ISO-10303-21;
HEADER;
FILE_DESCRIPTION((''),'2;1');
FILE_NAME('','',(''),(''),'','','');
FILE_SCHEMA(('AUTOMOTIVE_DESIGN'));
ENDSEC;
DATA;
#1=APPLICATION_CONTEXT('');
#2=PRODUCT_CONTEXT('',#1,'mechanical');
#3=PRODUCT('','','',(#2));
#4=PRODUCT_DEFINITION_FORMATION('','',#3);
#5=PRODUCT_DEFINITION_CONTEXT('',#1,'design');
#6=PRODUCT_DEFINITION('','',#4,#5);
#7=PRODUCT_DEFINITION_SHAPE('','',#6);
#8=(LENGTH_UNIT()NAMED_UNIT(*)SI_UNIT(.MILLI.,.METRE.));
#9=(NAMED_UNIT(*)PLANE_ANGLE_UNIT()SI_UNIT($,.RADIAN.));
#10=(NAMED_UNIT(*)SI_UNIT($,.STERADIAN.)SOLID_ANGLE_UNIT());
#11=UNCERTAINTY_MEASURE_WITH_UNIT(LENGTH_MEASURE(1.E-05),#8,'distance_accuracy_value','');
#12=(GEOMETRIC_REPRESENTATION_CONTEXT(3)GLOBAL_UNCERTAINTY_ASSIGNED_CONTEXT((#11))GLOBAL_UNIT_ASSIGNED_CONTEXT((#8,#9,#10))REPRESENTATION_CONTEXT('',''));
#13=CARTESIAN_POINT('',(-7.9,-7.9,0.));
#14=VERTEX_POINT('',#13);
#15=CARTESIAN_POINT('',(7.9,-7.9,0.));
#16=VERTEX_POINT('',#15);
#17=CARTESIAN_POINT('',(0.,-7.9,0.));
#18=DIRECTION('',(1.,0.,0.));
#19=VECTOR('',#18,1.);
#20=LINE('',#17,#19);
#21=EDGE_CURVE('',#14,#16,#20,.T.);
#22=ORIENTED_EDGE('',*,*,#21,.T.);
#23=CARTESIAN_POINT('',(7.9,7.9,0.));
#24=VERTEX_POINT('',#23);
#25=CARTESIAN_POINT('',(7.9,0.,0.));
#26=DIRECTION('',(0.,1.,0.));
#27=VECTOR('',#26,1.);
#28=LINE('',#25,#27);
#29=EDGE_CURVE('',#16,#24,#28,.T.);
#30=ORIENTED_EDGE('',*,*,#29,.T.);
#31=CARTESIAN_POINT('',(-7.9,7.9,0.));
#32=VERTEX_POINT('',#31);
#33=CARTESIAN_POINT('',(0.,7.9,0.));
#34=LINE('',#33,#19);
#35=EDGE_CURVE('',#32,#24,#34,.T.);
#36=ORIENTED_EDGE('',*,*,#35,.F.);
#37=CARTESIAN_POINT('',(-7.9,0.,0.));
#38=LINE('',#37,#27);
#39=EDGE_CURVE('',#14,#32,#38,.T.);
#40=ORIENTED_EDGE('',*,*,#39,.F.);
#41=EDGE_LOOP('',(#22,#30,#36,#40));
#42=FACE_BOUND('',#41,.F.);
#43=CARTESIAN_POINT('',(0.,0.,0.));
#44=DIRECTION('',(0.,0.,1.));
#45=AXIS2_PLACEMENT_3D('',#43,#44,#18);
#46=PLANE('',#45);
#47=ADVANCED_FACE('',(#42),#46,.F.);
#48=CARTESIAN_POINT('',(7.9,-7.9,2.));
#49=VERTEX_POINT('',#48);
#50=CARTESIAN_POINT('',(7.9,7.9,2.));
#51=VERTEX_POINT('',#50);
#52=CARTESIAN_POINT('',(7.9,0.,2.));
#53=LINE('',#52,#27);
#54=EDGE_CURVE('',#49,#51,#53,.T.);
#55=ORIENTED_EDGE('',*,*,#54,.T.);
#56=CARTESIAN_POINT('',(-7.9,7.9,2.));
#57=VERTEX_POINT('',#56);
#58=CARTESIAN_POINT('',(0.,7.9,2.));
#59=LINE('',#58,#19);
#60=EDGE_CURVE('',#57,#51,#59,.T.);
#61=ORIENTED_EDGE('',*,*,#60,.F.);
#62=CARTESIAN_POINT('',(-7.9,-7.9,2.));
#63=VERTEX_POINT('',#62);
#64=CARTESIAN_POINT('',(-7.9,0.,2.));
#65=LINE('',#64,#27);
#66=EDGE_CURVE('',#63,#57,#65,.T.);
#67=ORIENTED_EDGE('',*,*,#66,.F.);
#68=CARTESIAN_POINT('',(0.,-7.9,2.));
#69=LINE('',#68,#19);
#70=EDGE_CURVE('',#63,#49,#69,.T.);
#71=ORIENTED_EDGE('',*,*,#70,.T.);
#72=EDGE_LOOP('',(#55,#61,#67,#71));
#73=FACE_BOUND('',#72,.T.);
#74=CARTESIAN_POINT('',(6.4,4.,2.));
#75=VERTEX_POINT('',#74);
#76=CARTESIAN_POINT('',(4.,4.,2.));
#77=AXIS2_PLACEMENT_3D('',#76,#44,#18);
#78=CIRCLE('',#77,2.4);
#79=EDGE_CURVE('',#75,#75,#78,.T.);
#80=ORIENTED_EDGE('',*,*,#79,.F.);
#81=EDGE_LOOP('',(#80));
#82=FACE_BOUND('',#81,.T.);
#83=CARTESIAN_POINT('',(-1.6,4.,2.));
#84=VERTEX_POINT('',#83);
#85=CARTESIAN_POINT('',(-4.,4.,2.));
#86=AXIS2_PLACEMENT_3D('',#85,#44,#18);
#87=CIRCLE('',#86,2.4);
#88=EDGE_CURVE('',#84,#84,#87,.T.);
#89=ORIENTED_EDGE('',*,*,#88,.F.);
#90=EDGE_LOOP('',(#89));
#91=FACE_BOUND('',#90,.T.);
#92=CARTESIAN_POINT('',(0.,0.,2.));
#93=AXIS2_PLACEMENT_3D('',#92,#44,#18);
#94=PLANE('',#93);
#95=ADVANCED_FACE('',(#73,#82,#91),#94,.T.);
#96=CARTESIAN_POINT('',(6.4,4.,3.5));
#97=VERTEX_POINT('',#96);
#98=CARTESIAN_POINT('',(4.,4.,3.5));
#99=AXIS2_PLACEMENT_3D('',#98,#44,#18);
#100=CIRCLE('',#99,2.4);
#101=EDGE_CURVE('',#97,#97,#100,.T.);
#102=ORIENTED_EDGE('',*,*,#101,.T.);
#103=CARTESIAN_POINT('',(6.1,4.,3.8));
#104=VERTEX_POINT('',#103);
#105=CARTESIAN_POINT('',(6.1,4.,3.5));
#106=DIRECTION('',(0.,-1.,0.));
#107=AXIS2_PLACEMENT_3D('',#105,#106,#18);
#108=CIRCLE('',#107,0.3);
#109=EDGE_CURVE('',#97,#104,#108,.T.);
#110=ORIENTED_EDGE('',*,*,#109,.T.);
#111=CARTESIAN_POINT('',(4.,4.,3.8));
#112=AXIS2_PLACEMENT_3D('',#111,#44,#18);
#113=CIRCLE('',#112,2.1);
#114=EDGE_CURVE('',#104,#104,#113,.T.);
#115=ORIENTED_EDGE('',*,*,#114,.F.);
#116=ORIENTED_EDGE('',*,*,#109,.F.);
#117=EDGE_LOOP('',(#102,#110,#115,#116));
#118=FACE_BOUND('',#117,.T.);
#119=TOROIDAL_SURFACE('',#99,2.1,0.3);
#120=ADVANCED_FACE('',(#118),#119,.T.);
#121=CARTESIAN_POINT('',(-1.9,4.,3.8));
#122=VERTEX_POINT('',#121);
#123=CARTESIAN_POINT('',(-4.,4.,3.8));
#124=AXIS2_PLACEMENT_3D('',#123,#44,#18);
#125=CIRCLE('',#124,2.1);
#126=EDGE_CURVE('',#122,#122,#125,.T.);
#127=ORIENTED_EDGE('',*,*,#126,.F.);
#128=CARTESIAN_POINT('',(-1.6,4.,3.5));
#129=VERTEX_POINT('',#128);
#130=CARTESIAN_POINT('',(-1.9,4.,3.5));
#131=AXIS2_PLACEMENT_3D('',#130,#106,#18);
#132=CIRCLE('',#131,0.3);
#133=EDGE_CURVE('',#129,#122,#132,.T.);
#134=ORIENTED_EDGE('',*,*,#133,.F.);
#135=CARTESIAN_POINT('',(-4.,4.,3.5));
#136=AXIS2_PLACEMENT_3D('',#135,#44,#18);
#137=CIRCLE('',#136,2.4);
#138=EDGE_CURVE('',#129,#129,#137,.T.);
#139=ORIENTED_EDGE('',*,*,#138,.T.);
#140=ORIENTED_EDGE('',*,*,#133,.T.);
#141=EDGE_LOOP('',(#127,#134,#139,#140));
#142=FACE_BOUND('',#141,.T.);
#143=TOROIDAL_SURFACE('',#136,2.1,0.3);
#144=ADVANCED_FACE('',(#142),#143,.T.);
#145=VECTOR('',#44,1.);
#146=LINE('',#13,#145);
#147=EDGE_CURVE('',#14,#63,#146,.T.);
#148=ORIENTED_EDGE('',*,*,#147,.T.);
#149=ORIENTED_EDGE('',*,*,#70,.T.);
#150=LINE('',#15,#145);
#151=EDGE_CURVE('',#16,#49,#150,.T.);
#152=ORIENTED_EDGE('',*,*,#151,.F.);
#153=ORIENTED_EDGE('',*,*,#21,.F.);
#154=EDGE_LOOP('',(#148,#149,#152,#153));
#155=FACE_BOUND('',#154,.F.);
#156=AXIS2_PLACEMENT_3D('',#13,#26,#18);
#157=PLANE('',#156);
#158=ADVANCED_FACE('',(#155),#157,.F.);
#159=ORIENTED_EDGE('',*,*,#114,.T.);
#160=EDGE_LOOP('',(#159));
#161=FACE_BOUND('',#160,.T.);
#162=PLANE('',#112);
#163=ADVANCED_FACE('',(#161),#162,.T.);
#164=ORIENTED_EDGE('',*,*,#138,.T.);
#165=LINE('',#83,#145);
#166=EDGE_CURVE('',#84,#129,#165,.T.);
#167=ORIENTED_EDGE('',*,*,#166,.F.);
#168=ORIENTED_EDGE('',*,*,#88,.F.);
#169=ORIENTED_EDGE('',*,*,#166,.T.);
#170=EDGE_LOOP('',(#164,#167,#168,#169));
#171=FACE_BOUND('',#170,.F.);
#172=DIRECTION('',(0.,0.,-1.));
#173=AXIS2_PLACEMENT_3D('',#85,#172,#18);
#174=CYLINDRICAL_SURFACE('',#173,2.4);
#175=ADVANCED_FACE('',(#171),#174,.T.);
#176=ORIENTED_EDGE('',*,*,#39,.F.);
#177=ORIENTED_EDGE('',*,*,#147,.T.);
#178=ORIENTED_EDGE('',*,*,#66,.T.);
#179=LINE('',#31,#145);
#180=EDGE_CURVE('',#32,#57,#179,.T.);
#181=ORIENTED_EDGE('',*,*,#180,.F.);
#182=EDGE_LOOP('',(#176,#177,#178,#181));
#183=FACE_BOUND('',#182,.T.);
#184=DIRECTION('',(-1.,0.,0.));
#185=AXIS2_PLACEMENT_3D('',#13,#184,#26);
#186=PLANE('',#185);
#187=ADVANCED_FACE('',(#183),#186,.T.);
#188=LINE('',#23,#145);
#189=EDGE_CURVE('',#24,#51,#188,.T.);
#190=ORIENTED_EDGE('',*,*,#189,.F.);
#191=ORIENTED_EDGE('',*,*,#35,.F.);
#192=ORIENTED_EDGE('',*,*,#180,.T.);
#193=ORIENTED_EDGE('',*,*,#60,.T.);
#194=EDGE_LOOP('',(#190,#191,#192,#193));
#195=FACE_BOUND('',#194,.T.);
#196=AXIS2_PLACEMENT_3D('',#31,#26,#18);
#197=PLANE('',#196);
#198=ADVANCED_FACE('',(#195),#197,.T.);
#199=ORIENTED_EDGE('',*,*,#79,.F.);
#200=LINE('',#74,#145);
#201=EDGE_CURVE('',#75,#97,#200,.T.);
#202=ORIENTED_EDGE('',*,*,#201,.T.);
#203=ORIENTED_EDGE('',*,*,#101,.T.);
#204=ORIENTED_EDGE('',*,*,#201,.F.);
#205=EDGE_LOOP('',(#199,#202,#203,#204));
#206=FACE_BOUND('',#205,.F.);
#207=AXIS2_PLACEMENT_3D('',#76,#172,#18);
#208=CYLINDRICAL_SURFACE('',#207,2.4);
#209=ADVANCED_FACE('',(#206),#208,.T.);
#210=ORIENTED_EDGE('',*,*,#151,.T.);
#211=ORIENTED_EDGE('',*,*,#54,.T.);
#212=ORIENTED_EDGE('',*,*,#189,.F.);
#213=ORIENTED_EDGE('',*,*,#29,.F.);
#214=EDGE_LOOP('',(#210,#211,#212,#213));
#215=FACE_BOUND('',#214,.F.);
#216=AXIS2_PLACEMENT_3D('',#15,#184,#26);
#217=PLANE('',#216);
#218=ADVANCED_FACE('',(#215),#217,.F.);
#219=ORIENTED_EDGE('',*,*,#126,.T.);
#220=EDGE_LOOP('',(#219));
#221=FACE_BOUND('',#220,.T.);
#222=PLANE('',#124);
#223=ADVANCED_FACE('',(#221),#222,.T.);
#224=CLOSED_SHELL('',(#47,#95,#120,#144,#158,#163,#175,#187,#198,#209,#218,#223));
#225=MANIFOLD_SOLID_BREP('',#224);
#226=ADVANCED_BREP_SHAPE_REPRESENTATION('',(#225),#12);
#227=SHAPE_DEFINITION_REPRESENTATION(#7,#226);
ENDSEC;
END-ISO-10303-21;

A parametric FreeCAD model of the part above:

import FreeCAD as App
import Part
import Sketcher
Q = App.Units.Quantity


def edges_at(feature, points):
    """Names of the edges that pass closest to the given points."""
    edges = feature.Shape.Edges
    near = lambda p: min(range(len(edges)), key=lambda i: edges[i].distToShape(Part.Vertex(*p))[0])
    return sorted({f"Edge{near(p) + 1}" for p in points})

doc = App.newDocument("Part")
body = doc.addObject("PartDesign::Body", "Body")

sketch1 = body.newObject("Sketcher::SketchObject", "Sketch")
sketch1.AttachmentSupport = (doc.getObject("XY_Plane"), [""])
sketch1.MapMode = "FlatFace"
sketch1.addGeometry([
    Part.LineSegment(App.Vector(-8, 8, 0), App.Vector(-8, -8, 0)),
    Part.LineSegment(App.Vector(-8, -8, 0), App.Vector(8, -8, 0)),
    Part.LineSegment(App.Vector(8, -8, 0), App.Vector(8, 8, 0)),
    Part.LineSegment(App.Vector(8, 8, 0), App.Vector(-8, 8, 0)),
], False)
sketch1.addConstraint([
    Sketcher.Constraint("Coincident", 0, 2, 1, 1),
    Sketcher.Constraint("Coincident", 1, 2, 2, 1),
    Sketcher.Constraint("Coincident", 2, 2, 3, 1),
    Sketcher.Constraint("Coincident", 3, 2, 0, 1),
    Sketcher.Constraint("Vertical", 0),
    Sketcher.Constraint("Horizontal", 1),
    Sketcher.Constraint("Vertical", 2),
    Sketcher.Constraint("Horizontal", 3),
    Sketcher.Constraint("Symmetric", 0, 2, 2, 2, -1, 1),
    Sketcher.Constraint("Equal", 3, 0),
    Sketcher.Constraint("DistanceX", 1, 1, 1, 2, Q("15.8 mm")),
])
pad1 = body.newObject("PartDesign::Pad", "Pad")
pad1.Profile = sketch1
pad1.Length = 2

sketch2 = body.newObject("Sketcher::SketchObject", "Sketch001")
sketch2.AttachmentSupport = (doc.getObject("XY_Plane"), [""])
sketch2.MapMode = "FlatFace"
sketch2.AttachmentOffset = App.Placement(App.Vector(0, 0, 2), App.Rotation())
sketch2.addGeometry([
    Part.Circle(App.Vector(-4, 4, 0), App.Vector(0, 0, 1), 2.4),
    Part.Circle(App.Vector(4, 4, 0), App.Vector(0, 0, 1), 2.4),
], False)
sketch2.addConstraint([
    Sketcher.Constraint("Equal", 0, 1),
    Sketcher.Constraint("Symmetric", 0, 3, 1, 3, -2),
    Sketcher.Constraint("Diameter", 0, Q("4.8 mm")),
    Sketcher.Constraint("DistanceX", 0, 3, -1, 1, Q("4 mm")),
    Sketcher.Constraint("DistanceY", -1, 1, 0, 3, Q("4 mm")),
])
pad2 = body.newObject("PartDesign::Pad", "Pad001")
pad2.Profile = sketch2
pad2.Length = 1.8
doc.recompute()

fillet = body.newObject("PartDesign::Fillet", "Fillet")
fillet.Base = (pad2, edges_at(pad2, [(1.6, 4, 3.8), (-6.4, 4, 3.8)]))
fillet.Radius = 0.3

doc.recompute()
